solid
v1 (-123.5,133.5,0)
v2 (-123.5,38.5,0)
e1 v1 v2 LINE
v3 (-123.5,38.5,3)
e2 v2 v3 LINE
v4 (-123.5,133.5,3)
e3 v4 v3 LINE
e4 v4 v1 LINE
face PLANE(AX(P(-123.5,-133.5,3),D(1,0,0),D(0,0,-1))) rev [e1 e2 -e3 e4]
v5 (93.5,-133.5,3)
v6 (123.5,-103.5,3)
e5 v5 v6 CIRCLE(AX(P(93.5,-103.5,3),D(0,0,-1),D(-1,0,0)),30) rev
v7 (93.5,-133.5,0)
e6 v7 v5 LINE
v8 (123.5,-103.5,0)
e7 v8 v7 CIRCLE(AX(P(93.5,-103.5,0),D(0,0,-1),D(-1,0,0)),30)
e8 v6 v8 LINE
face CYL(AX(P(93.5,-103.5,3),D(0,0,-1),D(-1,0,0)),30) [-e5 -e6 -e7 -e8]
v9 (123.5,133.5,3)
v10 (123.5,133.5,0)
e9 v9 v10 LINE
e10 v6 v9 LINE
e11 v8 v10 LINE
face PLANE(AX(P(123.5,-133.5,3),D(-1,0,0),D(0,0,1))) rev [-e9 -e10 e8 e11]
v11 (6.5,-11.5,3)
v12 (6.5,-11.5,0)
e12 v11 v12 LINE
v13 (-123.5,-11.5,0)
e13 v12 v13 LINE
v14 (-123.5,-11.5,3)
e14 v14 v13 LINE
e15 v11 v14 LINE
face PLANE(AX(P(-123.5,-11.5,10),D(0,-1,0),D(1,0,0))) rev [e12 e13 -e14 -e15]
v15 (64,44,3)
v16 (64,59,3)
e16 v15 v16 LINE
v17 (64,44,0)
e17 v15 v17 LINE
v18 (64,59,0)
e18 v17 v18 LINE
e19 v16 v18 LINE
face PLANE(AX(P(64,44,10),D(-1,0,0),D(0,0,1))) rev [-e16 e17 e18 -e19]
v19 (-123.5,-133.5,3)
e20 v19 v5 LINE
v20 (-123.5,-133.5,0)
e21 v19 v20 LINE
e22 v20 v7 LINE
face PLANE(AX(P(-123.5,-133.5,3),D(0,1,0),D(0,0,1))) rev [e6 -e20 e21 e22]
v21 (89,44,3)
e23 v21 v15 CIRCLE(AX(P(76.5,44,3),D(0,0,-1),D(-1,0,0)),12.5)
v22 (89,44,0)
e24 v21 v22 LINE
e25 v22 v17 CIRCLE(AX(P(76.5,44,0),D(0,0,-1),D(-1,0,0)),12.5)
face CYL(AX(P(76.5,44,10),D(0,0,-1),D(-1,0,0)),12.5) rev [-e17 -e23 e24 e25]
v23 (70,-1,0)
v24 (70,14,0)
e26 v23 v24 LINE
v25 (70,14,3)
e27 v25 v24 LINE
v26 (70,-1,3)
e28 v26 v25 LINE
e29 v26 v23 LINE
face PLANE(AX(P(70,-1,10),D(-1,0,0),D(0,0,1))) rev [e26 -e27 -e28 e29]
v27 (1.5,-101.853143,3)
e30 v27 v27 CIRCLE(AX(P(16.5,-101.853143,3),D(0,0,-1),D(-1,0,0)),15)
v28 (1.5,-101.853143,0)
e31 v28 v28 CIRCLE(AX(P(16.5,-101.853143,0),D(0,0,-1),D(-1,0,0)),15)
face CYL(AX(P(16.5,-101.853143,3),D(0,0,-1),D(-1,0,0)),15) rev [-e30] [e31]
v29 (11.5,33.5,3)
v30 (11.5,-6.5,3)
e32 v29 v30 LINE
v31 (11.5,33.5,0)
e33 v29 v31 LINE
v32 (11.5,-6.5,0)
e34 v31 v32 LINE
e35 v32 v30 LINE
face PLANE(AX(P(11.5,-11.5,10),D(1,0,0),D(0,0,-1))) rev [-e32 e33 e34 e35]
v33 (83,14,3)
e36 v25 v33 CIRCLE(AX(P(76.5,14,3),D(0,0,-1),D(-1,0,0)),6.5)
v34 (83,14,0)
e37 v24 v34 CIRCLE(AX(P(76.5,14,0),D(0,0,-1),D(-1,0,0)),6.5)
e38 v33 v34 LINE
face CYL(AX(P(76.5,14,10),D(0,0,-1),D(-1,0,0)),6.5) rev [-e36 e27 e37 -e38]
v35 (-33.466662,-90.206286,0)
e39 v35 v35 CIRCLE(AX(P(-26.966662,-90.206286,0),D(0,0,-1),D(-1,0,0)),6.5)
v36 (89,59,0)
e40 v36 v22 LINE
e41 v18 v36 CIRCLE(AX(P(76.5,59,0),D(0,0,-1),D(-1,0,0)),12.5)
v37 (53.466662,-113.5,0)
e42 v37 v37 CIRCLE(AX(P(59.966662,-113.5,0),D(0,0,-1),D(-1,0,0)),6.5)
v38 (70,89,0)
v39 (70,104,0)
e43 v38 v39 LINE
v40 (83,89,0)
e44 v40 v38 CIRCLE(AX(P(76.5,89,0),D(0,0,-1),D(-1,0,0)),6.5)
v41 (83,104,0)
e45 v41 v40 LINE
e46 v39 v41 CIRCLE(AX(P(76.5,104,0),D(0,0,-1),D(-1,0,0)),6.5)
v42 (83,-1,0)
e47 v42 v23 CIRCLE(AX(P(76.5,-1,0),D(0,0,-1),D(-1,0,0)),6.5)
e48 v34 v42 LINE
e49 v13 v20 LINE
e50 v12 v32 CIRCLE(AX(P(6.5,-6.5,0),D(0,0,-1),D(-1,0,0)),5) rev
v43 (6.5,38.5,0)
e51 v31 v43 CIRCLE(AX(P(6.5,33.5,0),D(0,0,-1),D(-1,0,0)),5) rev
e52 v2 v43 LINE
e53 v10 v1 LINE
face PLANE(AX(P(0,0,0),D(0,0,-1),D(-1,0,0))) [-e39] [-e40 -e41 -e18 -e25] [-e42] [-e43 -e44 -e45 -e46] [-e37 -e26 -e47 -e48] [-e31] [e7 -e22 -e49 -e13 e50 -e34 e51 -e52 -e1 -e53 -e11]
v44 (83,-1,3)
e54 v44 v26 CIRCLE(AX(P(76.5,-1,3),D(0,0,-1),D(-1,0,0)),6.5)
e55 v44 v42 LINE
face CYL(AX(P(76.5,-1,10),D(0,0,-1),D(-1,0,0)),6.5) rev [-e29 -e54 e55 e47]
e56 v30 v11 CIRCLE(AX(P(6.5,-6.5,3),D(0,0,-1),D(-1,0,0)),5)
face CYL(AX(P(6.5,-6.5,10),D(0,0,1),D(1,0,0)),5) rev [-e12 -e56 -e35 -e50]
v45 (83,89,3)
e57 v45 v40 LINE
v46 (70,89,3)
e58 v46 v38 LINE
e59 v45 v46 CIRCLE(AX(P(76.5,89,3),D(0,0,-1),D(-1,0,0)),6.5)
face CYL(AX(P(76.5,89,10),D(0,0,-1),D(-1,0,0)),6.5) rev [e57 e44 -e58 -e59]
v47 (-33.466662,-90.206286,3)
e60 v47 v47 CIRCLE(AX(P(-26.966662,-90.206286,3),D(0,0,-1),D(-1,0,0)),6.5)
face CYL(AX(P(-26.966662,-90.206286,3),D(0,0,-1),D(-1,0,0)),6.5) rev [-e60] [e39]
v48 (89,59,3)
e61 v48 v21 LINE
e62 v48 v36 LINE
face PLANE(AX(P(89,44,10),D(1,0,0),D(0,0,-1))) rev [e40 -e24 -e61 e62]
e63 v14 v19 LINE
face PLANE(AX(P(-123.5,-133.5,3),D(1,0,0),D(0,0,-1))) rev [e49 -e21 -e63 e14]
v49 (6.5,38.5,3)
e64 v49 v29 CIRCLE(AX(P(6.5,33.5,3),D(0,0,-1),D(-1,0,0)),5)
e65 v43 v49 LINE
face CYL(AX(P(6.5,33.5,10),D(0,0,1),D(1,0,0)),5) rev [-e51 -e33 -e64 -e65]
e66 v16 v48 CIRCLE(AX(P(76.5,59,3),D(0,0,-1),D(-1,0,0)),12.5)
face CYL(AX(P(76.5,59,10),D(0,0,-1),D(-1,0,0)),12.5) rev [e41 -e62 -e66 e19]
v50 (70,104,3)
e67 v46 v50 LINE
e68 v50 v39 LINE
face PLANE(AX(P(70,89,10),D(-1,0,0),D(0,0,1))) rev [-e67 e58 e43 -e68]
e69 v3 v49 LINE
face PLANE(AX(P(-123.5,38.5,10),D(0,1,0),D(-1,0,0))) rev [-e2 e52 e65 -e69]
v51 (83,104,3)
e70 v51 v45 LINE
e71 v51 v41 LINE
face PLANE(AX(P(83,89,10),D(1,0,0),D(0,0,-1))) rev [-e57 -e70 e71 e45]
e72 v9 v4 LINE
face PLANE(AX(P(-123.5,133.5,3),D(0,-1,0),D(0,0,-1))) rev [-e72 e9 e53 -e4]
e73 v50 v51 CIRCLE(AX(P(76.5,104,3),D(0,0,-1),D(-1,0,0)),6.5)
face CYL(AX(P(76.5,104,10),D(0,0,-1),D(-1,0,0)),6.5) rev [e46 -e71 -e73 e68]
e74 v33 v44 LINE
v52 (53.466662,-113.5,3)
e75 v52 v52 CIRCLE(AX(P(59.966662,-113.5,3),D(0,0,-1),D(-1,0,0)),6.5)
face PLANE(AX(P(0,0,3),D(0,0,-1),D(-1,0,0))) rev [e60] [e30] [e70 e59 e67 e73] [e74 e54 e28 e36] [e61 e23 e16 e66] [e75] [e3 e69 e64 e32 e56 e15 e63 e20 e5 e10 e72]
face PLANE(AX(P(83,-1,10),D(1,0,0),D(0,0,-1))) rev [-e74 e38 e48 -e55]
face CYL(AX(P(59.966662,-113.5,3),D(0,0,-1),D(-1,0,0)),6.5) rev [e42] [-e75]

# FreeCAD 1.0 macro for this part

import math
import FreeCAD as App
import Part
import Sketcher
Q = App.Units.Quantity


def edges_at(feature, points):
    """Names of the edges that pass closest to the given points."""
    edges = feature.Shape.Edges
    near = lambda p: min(range(len(edges)), key=lambda i: edges[i].distToShape(Part.Vertex(*p))[0])
    return sorted({f"Edge{near(p) + 1}" for p in points})

doc = App.newDocument("Part")
body = doc.addObject("PartDesign::Body", "Body")

sketch1 = body.newObject("Sketcher::SketchObject", "Sketch")
sketch1.AttachmentSupport = (doc.getObject("XY_Plane"), [""])
sketch1.MapMode = "FlatFace"
sketch1.addGeometry(Part.LineSegment(App.Vector(-123.5, 133.5, 0), App.Vector(-123.5, -133.5, 0)), False)
sketch1.addGeometry(Part.LineSegment(App.Vector(-123.5, -133.5, 0), App.Vector(123.5, -133.5, 0)), False)
sketch1.addGeometry(Part.LineSegment(App.Vector(123.5, -133.5, 0), App.Vector(123.5, 133.5, 0)), False)
sketch1.addGeometry(Part.LineSegment(App.Vector(123.5, 133.5, 0), App.Vector(-123.5, 133.5, 0)), False)
sketch1.addGeometry(Part.Circle(App.Vector(76.5, 6.5, 0), App.Vector(0, 0, 1), 6.5), False)
sketch1.addGeometry(Part.Circle(App.Vector(76.5, 51.5, 0), App.Vector(0, 0, 1), 12.5), False)
sketch1.addGeometry(Part.Circle(App.Vector(76.5, 96.5, 0), App.Vector(0, 0, 1), 6.5), False)
sketch1.addConstraint(Sketcher.Constraint("Coincident", 0, 2, 1, 1))
sketch1.addConstraint(Sketcher.Constraint("Coincident", 1, 2, 2, 1))
sketch1.addConstraint(Sketcher.Constraint("Coincident", 2, 2, 3, 1))
sketch1.addConstraint(Sketcher.Constraint("Coincident", 3, 2, 0, 1))
sketch1.addConstraint(Sketcher.Constraint("Vertical", 0))
sketch1.addConstraint(Sketcher.Constraint("Horizontal", 1))
sketch1.addConstraint(Sketcher.Constraint("Vertical", 2))
sketch1.addConstraint(Sketcher.Constraint("Horizontal", 3))
sketch1.addConstraint(Sketcher.Constraint("Equal", 4, 6))
sketch1.addConstraint(Sketcher.Constraint("Symmetric", 0, 2, 2, 2, -1, 1))
sketch1.addConstraint(Sketcher.Constraint("Vertical", 4, 3, 5, 3))
sketch1.addConstraint(Sketcher.Constraint("Vertical", 5, 3, 6, 3))
sketch1.addConstraint(Sketcher.Constraint("Diameter", 4, Q("13 mm")))
sketch1.addConstraint(Sketcher.Constraint("Diameter", 5, Q("25 mm")))
sketch1.addConstraint(Sketcher.Constraint("DistanceX", 1, 1, 1, 2, Q("247 mm")))
sketch1.addConstraint(Sketcher.Constraint("DistanceY", 0, 2, 0, 1, Q("267 mm")))
sketch1.addConstraint(Sketcher.Constraint("DistanceY", 4, 3, 5, 3, Q("45 mm")))
sketch1.addConstraint(Sketcher.Constraint("DistanceY", 5, 3, 6, 3, Q("45 mm")))
sketch1.addConstraint(Sketcher.Constraint("DistanceX", 0, 2, 4, 3, Q("200 mm")))
sketch1.addConstraint(Sketcher.Constraint("DistanceY", 0, 2, 4, 3, Q("140 mm")))
pad1 = body.newObject("PartDesign::Pad", "Pad")
pad1.Profile = sketch1
pad1.Length = 3

sketch2 = body.newObject("Sketcher::SketchObject", "Sketch001")
sketch2.AttachmentSupport = (doc.getObject("XY_Plane"), [""])
sketch2.MapMode = "FlatFace"
sketch2.addGeometry(Part.Circle(App.Vector(59.966662, -113.5, 0), App.Vector(0, 0, 1), 6.5), False)
sketch2.addGeometry(Part.Circle(App.Vector(16.5, -101.853143, 0), App.Vector(0, 0, 1), 15), False)
sketch2.addGeometry(Part.Circle(App.Vector(-26.966662, -90.206286, 0), App.Vector(0, 0, 1), 6.5), False)
sketch2.addConstraint(Sketcher.Constraint("Equal", 0, 2))
sketch2.addConstraint(Sketcher.Constraint("Diameter", 0, Q("13 mm")))
sketch2.addConstraint(Sketcher.Constraint("Diameter", 1, Q("30 mm")))
sketch2.addConstraint(Sketcher.Constraint("DistanceY", 0, 3, -1, 1, Q("113.5 mm")))
sketch2.addConstraint(Sketcher.Constraint("DistanceX", -1, 1, 1, 3, Q("16.5 mm")))
sketch2.addConstraint(Sketcher.Constraint("DistanceX", -1, 1, 0, 3, Q("59.966662 mm")))
sketch2.addConstraint(Sketcher.Constraint("DistanceY", 1, 3, -1, 1, Q("101.853143 mm")))
sketch2.addConstraint(Sketcher.Constraint("DistanceX", 2, 3, -1, 1, Q("26.966662 mm")))
sketch2.addConstraint(Sketcher.Constraint("DistanceY", 2, 3, -1, 1, Q("90.206286 mm")))
pocket1 = body.newObject("PartDesign::Pocket", "Pocket")
pocket1.Profile = sketch2
pocket1.Length = 3
pocket1.Reversed = True

sketch3 = body.newObject("Sketcher::SketchObject", "Sketch002")
sketch3.AttachmentSupport = (doc.getObject("XY_Plane"), [""])
sketch3.MapMode = "FlatFace"
sketch3.addGeometry(Part.LineSegment(App.Vector(11.5, 38.5, 0), App.Vector(11.5, -11.5, 0)), False)
sketch3.addGeometry(Part.LineSegment(App.Vector(11.5, -11.5, 0), App.Vector(-123.5, -11.5, 0)), False)
sketch3.addGeometry(Part.LineSegment(App.Vector(-123.5, -11.5, 0), App.Vector(-123.5, 38.5, 0)), False)
sketch3.addGeometry(Part.LineSegment(App.Vector(-123.5, 38.5, 0), App.Vector(11.5, 38.5, 0)), False)
sketch3.addConstraint(Sketcher.Constraint("Coincident", 0, 2, 1, 1))
sketch3.addConstraint(Sketcher.Constraint("Coincident", 1, 2, 2, 1))
sketch3.addConstraint(Sketcher.Constraint("Coincident", 2, 2, 3, 1))
sketch3.addConstraint(Sketcher.Constraint("Coincident", 3, 2, 0, 1))
sketch3.addConstraint(Sketcher.Constraint("Vertical", 0))
sketch3.addConstraint(Sketcher.Constraint("Horizontal", 1))
sketch3.addConstraint(Sketcher.Constraint("Vertical", 2))
sketch3.addConstraint(Sketcher.Constraint("Horizontal", 3))
sketch3.addConstraint(Sketcher.Constraint("DistanceX", 1, 2, 1, 1, Q("135 mm")))
sketch3.addConstraint(Sketcher.Constraint("DistanceY", 0, 2, 0, 1, Q("50 mm")))
sketch3.addConstraint(Sketcher.Constraint("DistanceX", -1, 1, 0, 2, Q("11.5 mm")))
sketch3.addConstraint(Sketcher.Constraint("DistanceY", 0, 2, -1, 1, Q("11.5 mm")))
pocket2 = body.newObject("PartDesign::Pocket", "Pocket001")
pocket2.Profile = sketch3
pocket2.Length = 10
pocket2.Reversed = True
doc.recompute()

fillet = body.newObject("PartDesign::Fillet", "Fillet")
fillet.Base = (pocket2, edges_at(pocket2, [(11.5, -11.5, 1.5), (11.5, 38.5, 1.5)]))
fillet.Radius = 5
doc.recompute()

fillet2 = body.newObject("PartDesign::Fillet", "Fillet001")
fillet2.Base = (fillet, edges_at(fillet, [(123.5, -133.5, 1.5)]))
fillet2.Radius = 30

sketch4 = body.newObject("Sketcher::SketchObject", "Sketch003")
sketch4.AttachmentSupport = (doc.getObject("XY_Plane"), [""])
sketch4.MapMode = "FlatFace"
sketch4.addGeometry(Part.LineSegment(App.Vector(83, 104, 0), App.Vector(83, 89, 0)), False)
sketch4.addGeometry(Part.ArcOfCircle(Part.Circle(App.Vector(76.5, 89, 0), App.Vector(0, 0, 1), 6.5), math.radians(180), math.radians(360)), False)
sketch4.addGeometry(Part.LineSegment(App.Vector(70, 89, 0), App.Vector(70, 104, 0)), False)
sketch4.addGeometry(Part.ArcOfCircle(Part.Circle(App.Vector(76.5, 104, 0), App.Vector(0, 0, 1), 6.5), math.radians(0), math.radians(180)), False)
sketch4.addGeometry(Part.LineSegment(App.Vector(83, 14, 0), App.Vector(83, -1, 0)), False)
sketch4.addGeometry(Part.ArcOfCircle(Part.Circle(App.Vector(76.5, -1, 0), App.Vector(0, 0, 1), 6.5), math.radians(180), math.radians(360)), False)
sketch4.addGeometry(Part.LineSegment(App.Vector(70, -1, 0), App.Vector(70, 14, 0)), False)
sketch4.addGeometry(Part.ArcOfCircle(Part.Circle(App.Vector(76.5, 14, 0), App.Vector(0, 0, 1), 6.5), math.radians(0), math.radians(180)), False)
sketch4.addGeometry(Part.LineSegment(App.Vector(89, 59, 0), App.Vector(89, 44, 0)), False)
sketch4.addGeometry(Part.ArcOfCircle(Part.Circle(App.Vector(76.5, 44, 0), App.Vector(0, 0, 1), 12.5), math.radians(180), math.radians(360)), False)
sketch4.addGeometry(Part.LineSegment(App.Vector(64, 44, 0), App.Vector(64, 59, 0)), False)
sketch4.addGeometry(Part.ArcOfCircle(Part.Circle(App.Vector(76.5, 59, 0), App.Vector(0, 0, 1), 12.5), math.radians(0), math.radians(180)), False)
sketch4.addConstraint(Sketcher.Constraint("Tangent", 0, 2, 1, 2))
sketch4.addConstraint(Sketcher.Constraint("Tangent", 1, 1, 2, 1))
sketch4.addConstraint(Sketcher.Constraint("Tangent", 2, 2, 3, 2))
sketch4.addConstraint(Sketcher.Constraint("Tangent", 3, 1, 0, 1))
sketch4.addConstraint(Sketcher.Constraint("Tangent", 4, 2, 5, 2))
sketch4.addConstraint(Sketcher.Constraint("Tangent", 5, 1, 6, 1))
sketch4.addConstraint(Sketcher.Constraint("Tangent", 6, 2, 7, 2))
sketch4.addConstraint(Sketcher.Constraint("Tangent", 7, 1, 4, 1))
sketch4.addConstraint(Sketcher.Constraint("Tangent", 8, 2, 9, 2))
sketch4.addConstraint(Sketcher.Constraint("Tangent", 9, 1, 10, 1))
sketch4.addConstraint(Sketcher.Constraint("Tangent", 10, 2, 11, 2))
sketch4.addConstraint(Sketcher.Constraint("Tangent", 11, 1, 8, 1))
sketch4.addConstraint(Sketcher.Constraint("Vertical", 0))
sketch4.addConstraint(Sketcher.Constraint("Vertical", 2))
sketch4.addConstraint(Sketcher.Constraint("Vertical", 4))
sketch4.addConstraint(Sketcher.Constraint("Vertical", 6))
sketch4.addConstraint(Sketcher.Constraint("Vertical", 8))
sketch4.addConstraint(Sketcher.Constraint("Vertical", 10))
sketch4.addConstraint(Sketcher.Constraint("Equal", 3, 5))
sketch4.addConstraint(Sketcher.Constraint("Vertical", 3, 3, 5, 3))
sketch4.addConstraint(Sketcher.Constraint("Vertical", 7, 3, 9, 3))
sketch4.addConstraint(Sketcher.Constraint("Equal", 2, 4))
sketch4.addConstraint(Sketcher.Constraint("Equal", 6, 8))
sketch4.addConstraint(Sketcher.Constraint("Radius", 1, Q("6.5 mm")))
sketch4.addConstraint(Sketcher.Constraint("Radius", 9, Q("12.5 mm")))
sketch4.addConstraint(Sketcher.Constraint("DistanceY", 0, 2, 0, 1, Q("15 mm")))
sketch4.addConstraint(Sketcher.Constraint("DistanceY", -1, 1, 1, 3, Q("89 mm")))
sketch4.addConstraint(Sketcher.Constraint("DistanceY", 5, 3, -1, 1, Q("1 mm")))
sketch4.addConstraint(Sketcher.Constraint("DistanceY", -1, 1, 9, 3, Q("44 mm")))
sketch4.addConstraint(Sketcher.Constraint("DistanceX", -1, 1, 0, 2, Q("83 mm")))
pocket3 = body.newObject("PartDesign::Pocket", "Pocket002")
pocket3.Profile = sketch4
pocket3.Length = 10
pocket3.Reversed = True

doc.recompute()
